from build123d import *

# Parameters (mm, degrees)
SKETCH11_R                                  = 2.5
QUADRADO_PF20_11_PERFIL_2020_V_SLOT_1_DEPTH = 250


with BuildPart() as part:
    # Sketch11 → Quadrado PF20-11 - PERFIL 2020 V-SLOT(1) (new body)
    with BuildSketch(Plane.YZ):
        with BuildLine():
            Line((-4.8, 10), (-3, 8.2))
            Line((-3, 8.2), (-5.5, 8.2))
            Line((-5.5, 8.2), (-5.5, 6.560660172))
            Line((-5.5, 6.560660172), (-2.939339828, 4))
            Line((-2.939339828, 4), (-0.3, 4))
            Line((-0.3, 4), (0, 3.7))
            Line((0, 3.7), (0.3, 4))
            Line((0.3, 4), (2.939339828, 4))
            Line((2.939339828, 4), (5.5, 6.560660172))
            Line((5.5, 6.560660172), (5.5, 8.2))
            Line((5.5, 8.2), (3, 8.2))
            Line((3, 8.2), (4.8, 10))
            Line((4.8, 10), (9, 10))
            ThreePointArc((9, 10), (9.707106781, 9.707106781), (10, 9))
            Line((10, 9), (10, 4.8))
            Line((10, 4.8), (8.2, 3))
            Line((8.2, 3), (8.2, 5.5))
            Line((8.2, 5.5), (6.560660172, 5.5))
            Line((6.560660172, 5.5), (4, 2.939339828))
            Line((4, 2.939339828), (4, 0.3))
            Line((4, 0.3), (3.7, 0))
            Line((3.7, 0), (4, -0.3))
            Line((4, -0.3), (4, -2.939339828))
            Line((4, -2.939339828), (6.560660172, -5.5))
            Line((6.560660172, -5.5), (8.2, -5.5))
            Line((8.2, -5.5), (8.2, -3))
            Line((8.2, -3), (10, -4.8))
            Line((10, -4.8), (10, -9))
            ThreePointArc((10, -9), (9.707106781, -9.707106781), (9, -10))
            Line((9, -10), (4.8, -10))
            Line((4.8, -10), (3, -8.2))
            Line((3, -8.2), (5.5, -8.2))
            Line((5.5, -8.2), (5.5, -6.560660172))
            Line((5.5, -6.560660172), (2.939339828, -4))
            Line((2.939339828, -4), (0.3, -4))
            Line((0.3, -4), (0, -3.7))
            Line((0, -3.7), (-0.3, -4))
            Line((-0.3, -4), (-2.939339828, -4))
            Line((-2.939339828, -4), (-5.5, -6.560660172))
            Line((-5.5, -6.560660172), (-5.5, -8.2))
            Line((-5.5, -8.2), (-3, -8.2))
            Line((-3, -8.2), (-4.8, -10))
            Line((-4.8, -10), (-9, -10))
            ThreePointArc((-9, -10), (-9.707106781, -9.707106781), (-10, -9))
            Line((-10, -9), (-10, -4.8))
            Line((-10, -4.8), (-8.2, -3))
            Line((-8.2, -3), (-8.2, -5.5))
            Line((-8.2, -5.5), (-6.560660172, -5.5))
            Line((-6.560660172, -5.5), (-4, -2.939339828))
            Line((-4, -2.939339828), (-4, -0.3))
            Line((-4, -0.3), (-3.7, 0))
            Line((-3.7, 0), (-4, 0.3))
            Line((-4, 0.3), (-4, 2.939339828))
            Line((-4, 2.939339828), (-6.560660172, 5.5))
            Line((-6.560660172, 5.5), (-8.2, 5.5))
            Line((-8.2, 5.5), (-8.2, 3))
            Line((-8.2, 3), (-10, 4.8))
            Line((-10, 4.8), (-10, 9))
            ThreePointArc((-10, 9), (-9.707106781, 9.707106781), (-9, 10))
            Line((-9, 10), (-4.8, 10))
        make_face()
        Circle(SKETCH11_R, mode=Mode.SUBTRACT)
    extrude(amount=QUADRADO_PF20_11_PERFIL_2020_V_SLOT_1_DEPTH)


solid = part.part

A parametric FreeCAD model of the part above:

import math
import FreeCAD as App
import Part
import Sketcher
Q = App.Units.Quantity

doc = App.newDocument("Part")
body = doc.addObject("PartDesign::Body", "Body")

sketch1 = body.newObject("Sketcher::SketchObject", "Sketch")
sketch1.AttachmentSupport = (doc.getObject("YZ_Plane"), [""])
sketch1.MapMode = "FlatFace"
sketch1.addGeometry(Part.LineSegment(App.Vector(-3, 8.2, 0), App.Vector(-4.8, 10, 0)), False)
sketch1.addGeometry(Part.LineSegment(App.Vector(-4.8, 10, 0), App.Vector(-9, 10, 0)), False)
sketch1.addGeometry(Part.ArcOfCircle(Part.Circle(App.Vector(-9, 9, 0), App.Vector(0, 0, 1), 1), math.radians(90), math.radians(180)), False)
sketch1.addGeometry(Part.LineSegment(App.Vector(-10, 9, 0), App.Vector(-10, 4.8, 0)), False)
sketch1.addGeometry(Part.LineSegment(App.Vector(-10, 4.8, 0), App.Vector(-8.2, 3, 0)), False)
sketch1.addGeometry(Part.LineSegment(App.Vector(-8.2, 3, 0), App.Vector(-8.2, 5.5, 0)), False)
sketch1.addGeometry(Part.LineSegment(App.Vector(-8.2, 5.5, 0), App.Vector(-6.56, 5.5, 0)), False)
sketch1.addGeometry(Part.LineSegment(App.Vector(-6.56, 5.5, 0), App.Vector(-4, 2.94, 0)), False)
sketch1.addGeometry(Part.LineSegment(App.Vector(-4, 2.94, 0), App.Vector(-4, 0.3, 0)), False)
sketch1.addGeometry(Part.LineSegment(App.Vector(-4, 0.3, 0), App.Vector(-3.7, 0, 0)), False)
sketch1.addGeometry(Part.LineSegment(App.Vector(-3.7, 0, 0), App.Vector(-4, -0.3, 0)), False)
sketch1.addGeometry(Part.LineSegment(App.Vector(-4, -0.3, 0), App.Vector(-4, -2.94, 0)), False)
sketch1.addGeometry(Part.LineSegment(App.Vector(-4, -2.94, 0), App.Vector(-6.56, -5.5, 0)), False)
sketch1.addGeometry(Part.LineSegment(App.Vector(-6.56, -5.5, 0), App.Vector(-8.2, -5.5, 0)), False)
sketch1.addGeometry(Part.LineSegment(App.Vector(-8.2, -5.5, 0), App.Vector(-8.2, -3, 0)), False)
sketch1.addGeometry(Part.LineSegment(App.Vector(-8.2, -3, 0), App.Vector(-10, -4.8, 0)), False)
sketch1.addGeometry(Part.LineSegment(App.Vector(-10, -4.8, 0), App.Vector(-10, -9, 0)), False)
sketch1.addGeometry(Part.ArcOfCircle(Part.Circle(App.Vector(-9, -9, 0), App.Vector(0, 0, 1), 1), math.radians(-180), math.radians(-90)), False)
sketch1.addGeometry(Part.LineSegment(App.Vector(-9, -10, 0), App.Vector(-4.8, -10, 0)), False)
sketch1.addGeometry(Part.LineSegment(App.Vector(-4.8, -10, 0), App.Vector(-3, -8.2, 0)), False)
sketch1.addGeometry(Part.LineSegment(App.Vector(-3, -8.2, 0), App.Vector(-5.5, -8.2, 0)), False)
sketch1.addGeometry(Part.LineSegment(App.Vector(-5.5, -8.2, 0), App.Vector(-5.5, -6.56, 0)), False)
sketch1.addGeometry(Part.LineSegment(App.Vector(-5.5, -6.56, 0), App.Vector(-2.94, -4, 0)), False)
sketch1.addGeometry(Part.LineSegment(App.Vector(-2.94, -4, 0), App.Vector(-0.3, -4, 0)), False)
sketch1.addGeometry(Part.LineSegment(App.Vector(-0.3, -4, 0), App.Vector(0, -3.7, 0)), False)
sketch1.addGeometry(Part.LineSegment(App.Vector(0, -3.7, 0), App.Vector(0.3, -4, 0)), False)
sketch1.addGeometry(Part.LineSegment(App.Vector(0.3, -4, 0), App.Vector(2.94, -4, 0)), False)
sketch1.addGeometry(Part.LineSegment(App.Vector(2.94, -4, 0), App.Vector(5.5, -6.56, 0)), False)
sketch1.addGeometry(Part.LineSegment(App.Vector(5.5, -6.56, 0), App.Vector(5.5, -8.2, 0)), False)
sketch1.addGeometry(Part.LineSegment(App.Vector(5.5, -8.2, 0), App.Vector(3, -8.2, 0)), False)
sketch1.addGeometry(Part.LineSegment(App.Vector(3, -8.2, 0), App.Vector(4.8, -10, 0)), False)
sketch1.addGeometry(Part.LineSegment(App.Vector(4.8, -10, 0), App.Vector(9, -10, 0)), False)
sketch1.addGeometry(Part.ArcOfCircle(Part.Circle(App.Vector(9, -9, 0), App.Vector(0, 0, 1), 1), math.radians(-90), math.radians(0)), False)
sketch1.addGeometry(Part.LineSegment(App.Vector(10, -9, 0), App.Vector(10, -4.8, 0)), False)
sketch1.addGeometry(Part.LineSegment(App.Vector(10, -4.8, 0), App.Vector(8.2, -3, 0)), False)
sketch1.addGeometry(Part.LineSegment(App.Vector(8.2, -3, 0), App.Vector(8.2, -5.5, 0)), False)
sketch1.addGeometry(Part.LineSegment(App.Vector(8.2, -5.5, 0), App.Vector(6.56, -5.5, 0)), False)
sketch1.addGeometry(Part.LineSegment(App.Vector(6.56, -5.5, 0), App.Vector(4, -2.94, 0)), False)
sketch1.addGeometry(Part.LineSegment(App.Vector(4, -2.94, 0), App.Vector(4, -0.3, 0)), False)
sketch1.addGeometry(Part.LineSegment(App.Vector(4, -0.3, 0), App.Vector(3.7, 0, 0)), False)
sketch1.addGeometry(Part.LineSegment(App.Vector(3.7, 0, 0), App.Vector(4, 0.3, 0)), False)
sketch1.addGeometry(Part.LineSegment(App.Vector(4, 0.3, 0), App.Vector(4, 2.94, 0)), False)
sketch1.addGeometry(Part.LineSegment(App.Vector(4, 2.94, 0), App.Vector(6.56, 5.5, 0)), False)
sketch1.addGeometry(Part.LineSegment(App.Vector(6.56, 5.5, 0), App.Vector(8.2, 5.5, 0)), False)
sketch1.addGeometry(Part.LineSegment(App.Vector(8.2, 5.5, 0), App.Vector(8.2, 3, 0)), False)
sketch1.addGeometry(Part.LineSegment(App.Vector(8.2, 3, 0), App.Vector(10, 4.8, 0)), False)
sketch1.addGeometry(Part.LineSegment(App.Vector(10, 4.8, 0), App.Vector(10, 9, 0)), False)
sketch1.addGeometry(Part.ArcOfCircle(Part.Circle(App.Vector(9, 9, 0), App.Vector(0, 0, 1), 1), math.radians(0), math.radians(90)), False)
sketch1.addGeometry(Part.LineSegment(App.Vector(9, 10, 0), App.Vector(4.8, 10, 0)), False)
sketch1.addGeometry(Part.LineSegment(App.Vector(4.8, 10, 0), App.Vector(3, 8.2, 0)), False)
sketch1.addGeometry(Part.LineSegment(App.Vector(3, 8.2, 0), App.Vector(5.5, 8.2, 0)), False)
sketch1.addGeometry(Part.LineSegment(App.Vector(5.5, 8.2, 0), App.Vector(5.5, 6.56, 0)), False)
sketch1.addGeometry(Part.LineSegment(App.Vector(5.5, 6.56, 0), App.Vector(2.94, 4, 0)), False)
sketch1.addGeometry(Part.LineSegment(App.Vector(2.94, 4, 0), App.Vector(0.3, 4, 0)), False)
sketch1.addGeometry(Part.LineSegment(App.Vector(0.3, 4, 0), App.Vector(0, 3.7, 0)), False)
sketch1.addGeometry(Part.LineSegment(App.Vector(0, 3.7, 0), App.Vector(-0.3, 4, 0)), False)
sketch1.addGeometry(Part.LineSegment(App.Vector(-0.3, 4, 0), App.Vector(-2.94, 4, 0)), False)
sketch1.addGeometry(Part.LineSegment(App.Vector(-2.94, 4, 0), App.Vector(-5.5, 6.56, 0)), False)
sketch1.addGeometry(Part.LineSegment(App.Vector(-5.5, 6.56, 0), App.Vector(-5.5, 8.2, 0)), False)
sketch1.addGeometry(Part.LineSegment(App.Vector(-5.5, 8.2, 0), App.Vector(-3, 8.2, 0)), False)
sketch1.addGeometry(Part.Circle(App.Vector(0, 0, 0), App.Vector(0, 0, 1), 2.5), False)
sketch1.addConstraint(Sketcher.Constraint("Coincident", 0, 2, 1, 1))
sketch1.addConstraint(Sketcher.Constraint("Tangent", 1, 2, 2, 1))
sketch1.addConstraint(Sketcher.Constraint("Tangent", 2, 2, 3, 1))
sketch1.addConstraint(Sketcher.Constraint("Coincident", 3, 2, 4, 1))
sketch1.addConstraint(Sketcher.Constraint("Coincident", 4, 2, 5, 1))
sketch1.addConstraint(Sketcher.Constraint("Coincident", 5, 2, 6, 1))
sketch1.addConstraint(Sketcher.Constraint("Coincident", 6, 2, 7, 1))
sketch1.addConstraint(Sketcher.Constraint("Coincident", 7, 2, 8, 1))
sketch1.addConstraint(Sketcher.Constraint("Coincident", 8, 2, 9, 1))
sketch1.addConstraint(Sketcher.Constraint("Coincident", 9, 2, 10, 1))
sketch1.addConstraint(Sketcher.Constraint("Coincident", 10, 2, 11, 1))
sketch1.addConstraint(Sketcher.Constraint("Coincident", 11, 2, 12, 1))
sketch1.addConstraint(Sketcher.Constraint("Coincident", 12, 2, 13, 1))
sketch1.addConstraint(Sketcher.Constraint("Coincident", 13, 2, 14, 1))
sketch1.addConstraint(Sketcher.Constraint("Coincident", 14, 2, 15, 1))
sketch1.addConstraint(Sketcher.Constraint("Coincident", 15, 2, 16, 1))
sketch1.addConstraint(Sketcher.Constraint("Tangent", 16, 2, 17, 1))
sketch1.addConstraint(Sketcher.Constraint("Tangent", 17, 2, 18, 1))
sketch1.addConstraint(Sketcher.Constraint("Coincident", 18, 2, 19, 1))
sketch1.addConstraint(Sketcher.Constraint("Coincident", 19, 2, 20, 1))
sketch1.addConstraint(Sketcher.Constraint("Coincident", 20, 2, 21, 1))
sketch1.addConstraint(Sketcher.Constraint("Coincident", 21, 2, 22, 1))
sketch1.addConstraint(Sketcher.Constraint("Coincident", 22, 2, 23, 1))
sketch1.addConstraint(Sketcher.Constraint("Coincident", 23, 2, 24, 1))
sketch1.addConstraint(Sketcher.Constraint("Coincident", 24, 2, 25, 1))
sketch1.addConstraint(Sketcher.Constraint("Coincident", 25, 2, 26, 1))
sketch1.addConstraint(Sketcher.Constraint("Coincident", 26, 2, 27, 1))
sketch1.addConstraint(Sketcher.Constraint("Coincident", 27, 2, 28, 1))
sketch1.addConstraint(Sketcher.Constraint("Coincident", 28, 2, 29, 1))
sketch1.addConstraint(Sketcher.Constraint("Coincident", 29, 2, 30, 1))
sketch1.addConstraint(Sketcher.Constraint("Coincident", 30, 2, 31, 1))
sketch1.addConstraint(Sketcher.Constraint("Tangent", 31, 2, 32, 1))
sketch1.addConstraint(Sketcher.Constraint("Tangent", 32, 2, 33, 1))
sketch1.addConstraint(Sketcher.Constraint("Coincident", 33, 2, 34, 1))
sketch1.addConstraint(Sketcher.Constraint("Coincident", 34, 2, 35, 1))
sketch1.addConstraint(Sketcher.Constraint("Coincident", 35, 2, 36, 1))
sketch1.addConstraint(Sketcher.Constraint("Coincident", 36, 2, 37, 1))
sketch1.addConstraint(Sketcher.Constraint("Coincident", 37, 2, 38, 1))
sketch1.addConstraint(Sketcher.Constraint("Coincident", 38, 2, 39, 1))
sketch1.addConstraint(Sketcher.Constraint("Coincident", 39, 2, 40, 1))
sketch1.addConstraint(Sketcher.Constraint("Coincident", 40, 2, 41, 1))
sketch1.addConstraint(Sketcher.Constraint("Coincident", 41, 2, 42, 1))
sketch1.addConstraint(Sketcher.Constraint("Coincident", 42, 2, 43, 1))
sketch1.addConstraint(Sketcher.Constraint("Coincident", 43, 2, 44, 1))
sketch1.addConstraint(Sketcher.Constraint("Coincident", 44, 2, 45, 1))
sketch1.addConstraint(Sketcher.Constraint("Coincident", 45, 2, 46, 1))
sketch1.addConstraint(Sketcher.Constraint("Tangent", 46, 2, 47, 1))
sketch1.addConstraint(Sketcher.Constraint("Tangent", 47, 2, 48, 1))
sketch1.addConstraint(Sketcher.Constraint("Coincident", 48, 2, 49, 1))
sketch1.addConstraint(Sketcher.Constraint("Coincident", 49, 2, 50, 1))
sketch1.addConstraint(Sketcher.Constraint("Coincident", 50, 2, 51, 1))
sketch1.addConstraint(Sketcher.Constraint("Coincident", 51, 2, 52, 1))
sketch1.addConstraint(Sketcher.Constraint("Coincident", 52, 2, 53, 1))
sketch1.addConstraint(Sketcher.Constraint("Coincident", 53, 2, 54, 1))
sketch1.addConstraint(Sketcher.Constraint("Coincident", 54, 2, 55, 1))
sketch1.addConstraint(Sketcher.Constraint("Coincident", 55, 2, 56, 1))
sketch1.addConstraint(Sketcher.Constraint("Coincident", 56, 2, 57, 1))
sketch1.addConstraint(Sketcher.Constraint("Coincident", 57, 2, 58, 1))
sketch1.addConstraint(Sketcher.Constraint("Coincident", 58, 2, 59, 1))
sketch1.addConstraint(Sketcher.Constraint("Coincident", 59, 2, 0, 1))
sketch1.addConstraint(Sketcher.Constraint("Horizontal", 1))
sketch1.addConstraint(Sketcher.Constraint("Vertical", 3))
sketch1.addConstraint(Sketcher.Constraint("Vertical", 5))
sketch1.addConstraint(Sketcher.Constraint("Horizontal", 6))
sketch1.addConstraint(Sketcher.Constraint("Vertical", 8))
sketch1.addConstraint(Sketcher.Constraint("Vertical", 11))
sketch1.addConstraint(Sketcher.Constraint("Horizontal", 13))
sketch1.addConstraint(Sketcher.Constraint("Vertical", 14))
sketch1.addConstraint(Sketcher.Constraint("Vertical", 16))
sketch1.addConstraint(Sketcher.Constraint("Horizontal", 18))
sketch1.addConstraint(Sketcher.Constraint("Horizontal", 20))
sketch1.addConstraint(Sketcher.Constraint("Vertical", 21))
sketch1.addConstraint(Sketcher.Constraint("Horizontal", 23))
sketch1.addConstraint(Sketcher.Constraint("Horizontal", 26))
sketch1.addConstraint(Sketcher.Constraint("Vertical", 28))
sketch1.addConstraint(Sketcher.Constraint("Horizontal", 29))
sketch1.addConstraint(Sketcher.Constraint("Horizontal", 31))
sketch1.addConstraint(Sketcher.Constraint("Vertical", 33))
sketch1.addConstraint(Sketcher.Constraint("Vertical", 35))
sketch1.addConstraint(Sketcher.Constraint("Horizontal", 36))
sketch1.addConstraint(Sketcher.Constraint("Vertical", 38))
sketch1.addConstraint(Sketcher.Constraint("Vertical", 41))
sketch1.addConstraint(Sketcher.Constraint("Horizontal", 43))
sketch1.addConstraint(Sketcher.Constraint("Vertical", 44))
sketch1.addConstraint(Sketcher.Constraint("Vertical", 46))
sketch1.addConstraint(Sketcher.Constraint("Horizontal", 48))
sketch1.addConstraint(Sketcher.Constraint("Horizontal", 50))
sketch1.addConstraint(Sketcher.Constraint("Vertical", 51))
sketch1.addConstraint(Sketcher.Constraint("Horizontal", 53))
sketch1.addConstraint(Sketcher.Constraint("Horizontal", 56))
sketch1.addConstraint(Sketcher.Constraint("Vertical", 58))
sketch1.addConstraint(Sketcher.Constraint("Horizontal", 59))
sketch1.addConstraint(Sketcher.Constraint("Coincident", 60, 3, -1, 1))
sketch1.addConstraint(Sketcher.Constraint("Equal", 2, 17))
sketch1.addConstraint(Sketcher.Constraint("Equal", 17, 32))
sketch1.addConstraint(Sketcher.Constraint("Equal", 32, 47))
sketch1.addConstraint(Sketcher.Constraint("Symmetric", 2, 3, 32, 3, -1, 1))
sketch1.addConstraint(Sketcher.Constraint("Symmetric", 17, 3, 47, 3, -1, 1))
sketch1.addConstraint(Sketcher.Constraint("Symmetric", 4, 2, 34, 2, -1, 1))
sketch1.addConstraint(Sketcher.Constraint("Symmetric", 6, 2, 36, 2, -1, 1))
sketch1.addConstraint(Sketcher.Constraint("Symmetric", 7, 2, 37, 2, -1, 1))
sketch1.addConstraint(Sketcher.Constraint("Symmetric", 9, 2, 39, 2, -1, 1))
sketch1.addConstraint(Sketcher.Constraint("Symmetric", 10, 2, 40, 2, -1, 1))
sketch1.addConstraint(Sketcher.Constraint("Symmetric", 12, 2, 42, 2, -1, 1))
sketch1.addConstraint(Sketcher.Constraint("Symmetric", 14, 2, 44, 2, -1, 1))
sketch1.addConstraint(Sketcher.Constraint("Symmetric", 19, 2, 49, 2, -1, 1))
sketch1.addConstraint(Sketcher.Constraint("Symmetric", 21, 2, 51, 2, -1, 1))
sketch1.addConstraint(Sketcher.Constraint("Symmetric", 22, 2, 52, 2, -1, 1))
sketch1.addConstraint(Sketcher.Constraint("Symmetric", 24, 2, 54, 2, -1, 1))
sketch1.addConstraint(Sketcher.Constraint("Symmetric", 25, 2, 55, 2, -1, 1))
sketch1.addConstraint(Sketcher.Constraint("Symmetric", 27, 2, 57, 2, -1, 1))
sketch1.addConstraint(Sketcher.Constraint("Symmetric", 29, 2, 59, 2, -1, 1))
sketch1.addConstraint(Sketcher.Constraint("Symmetric", 17, 3, 32, 3, -2))
sketch1.addConstraint(Sketcher.Constraint("Symmetric", 23, 2, 25, 2, -2))
sketch1.addConstraint(Sketcher.Constraint("Symmetric", 21, 2, 27, 2, -2))
sketch1.addConstraint(Sketcher.Constraint("Symmetric", 19, 2, 29, 2, -2))
sketch1.addConstraint(Sketcher.Constraint("Symmetric", 14, 2, 34, 2, -2))
sketch1.addConstraint(Sketcher.Constraint("Symmetric", 12, 2, 36, 2, -2))
sketch1.addConstraint(Sketcher.Constraint("Symmetric", 11, 2, 37, 2, -2))
sketch1.addConstraint(Sketcher.Constraint("PointOnObject", 9, 2, -1))
sketch1.addConstraint(Sketcher.Constraint("PointOnObject", 24, 2, -2))
sketch1.addConstraint(Sketcher.Constraint("Parallel", 0, 4))
sketch1.addConstraint(Sketcher.Constraint("Parallel", 4, 7))
sketch1.addConstraint(Sketcher.Constraint("Parallel", 7, 9))
sketch1.addConstraint(Sketcher.Constraint("Perpendicular", 9, 10))
sketch1.addConstraint(Sketcher.Constraint("Parallel", 10, 12))
sketch1.addConstraint(Sketcher.Constraint("Parallel", 12, 15))
sketch1.addConstraint(Sketcher.Constraint("Parallel", 15, 19))
sketch1.addConstraint(Sketcher.Constraint("Parallel", 19, 22))
sketch1.addConstraint(Sketcher.Constraint("Parallel", 22, 24))
sketch1.addConstraint(Sketcher.Constraint("Parallel", 25, 27))
sketch1.addConstraint(Sketcher.Constraint("Parallel", 27, 30))
sketch1.addConstraint(Sketcher.Constraint("Parallel", 30, 34))
sketch1.addConstraint(Sketcher.Constraint("Parallel", 37, 39))
sketch1.addConstraint(Sketcher.Constraint("Parallel", 40, 42))
sketch1.addConstraint(Sketcher.Constraint("Parallel", 42, 45))
sketch1.addConstraint(Sketcher.Constraint("Parallel", 45, 49))
sketch1.addConstraint(Sketcher.Constraint("Parallel", 52, 54))
sketch1.addConstraint(Sketcher.Constraint("Parallel", 55, 57))
sketch1.addConstraint(Sketcher.Constraint("Equal", 48, 3))
sketch1.addConstraint(Sketcher.Constraint("Equal", 59, 5))
sketch1.addConstraint(Sketcher.Constraint("Equal", 56, 8))
sketch1.addConstraint(Sketcher.Constraint("Equal", 43, 21))
sketch1.addConstraint(Sketcher.Constraint("Equal", 0, 4))
sketch1.addConstraint(Sketcher.Constraint("Equal", 12, 22))
sketch1.addConstraint(Sketcher.Constraint("Equal", 10, 24))
sketch1.addConstraint(Sketcher.Constraint("Diameter", 60, Q("5 mm")))
sketch1.addConstraint(Sketcher.Constraint("Radius", 2, Q("1 mm")))
sketch1.addConstraint(Sketcher.Constraint("DistanceX", 1, 2, 1, 1, Q("4.2 mm")))
sketch1.addConstraint(Sketcher.Constraint("DistanceX", 20, 2, 20, 1, Q("2.5 mm")))
sketch1.addConstraint(Sketcher.Constraint("DistanceX", 2, 3, -1, 1, Q("9 mm")))
sketch1.addConstraint(Sketcher.Constraint("DistanceY", -1, 1, 4, 2, Q("3 mm")))
sketch1.addConstraint(Sketcher.Constraint("DistanceX", 7, 2, -1, 1, Q("4 mm")))
sketch1.addConstraint(Sketcher.Constraint("DistanceY", -1, 1, 8, 2, Q("0.3 mm")))
sketch1.addConstraint(Sketcher.Constraint("DistanceX", 6, 1, 6, 2, Q("1.63934 mm")))
pad1 = body.newObject("PartDesign::Pad", "Pad")
pad1.Profile = sketch1
pad1.Length = 250

doc.recompute()
